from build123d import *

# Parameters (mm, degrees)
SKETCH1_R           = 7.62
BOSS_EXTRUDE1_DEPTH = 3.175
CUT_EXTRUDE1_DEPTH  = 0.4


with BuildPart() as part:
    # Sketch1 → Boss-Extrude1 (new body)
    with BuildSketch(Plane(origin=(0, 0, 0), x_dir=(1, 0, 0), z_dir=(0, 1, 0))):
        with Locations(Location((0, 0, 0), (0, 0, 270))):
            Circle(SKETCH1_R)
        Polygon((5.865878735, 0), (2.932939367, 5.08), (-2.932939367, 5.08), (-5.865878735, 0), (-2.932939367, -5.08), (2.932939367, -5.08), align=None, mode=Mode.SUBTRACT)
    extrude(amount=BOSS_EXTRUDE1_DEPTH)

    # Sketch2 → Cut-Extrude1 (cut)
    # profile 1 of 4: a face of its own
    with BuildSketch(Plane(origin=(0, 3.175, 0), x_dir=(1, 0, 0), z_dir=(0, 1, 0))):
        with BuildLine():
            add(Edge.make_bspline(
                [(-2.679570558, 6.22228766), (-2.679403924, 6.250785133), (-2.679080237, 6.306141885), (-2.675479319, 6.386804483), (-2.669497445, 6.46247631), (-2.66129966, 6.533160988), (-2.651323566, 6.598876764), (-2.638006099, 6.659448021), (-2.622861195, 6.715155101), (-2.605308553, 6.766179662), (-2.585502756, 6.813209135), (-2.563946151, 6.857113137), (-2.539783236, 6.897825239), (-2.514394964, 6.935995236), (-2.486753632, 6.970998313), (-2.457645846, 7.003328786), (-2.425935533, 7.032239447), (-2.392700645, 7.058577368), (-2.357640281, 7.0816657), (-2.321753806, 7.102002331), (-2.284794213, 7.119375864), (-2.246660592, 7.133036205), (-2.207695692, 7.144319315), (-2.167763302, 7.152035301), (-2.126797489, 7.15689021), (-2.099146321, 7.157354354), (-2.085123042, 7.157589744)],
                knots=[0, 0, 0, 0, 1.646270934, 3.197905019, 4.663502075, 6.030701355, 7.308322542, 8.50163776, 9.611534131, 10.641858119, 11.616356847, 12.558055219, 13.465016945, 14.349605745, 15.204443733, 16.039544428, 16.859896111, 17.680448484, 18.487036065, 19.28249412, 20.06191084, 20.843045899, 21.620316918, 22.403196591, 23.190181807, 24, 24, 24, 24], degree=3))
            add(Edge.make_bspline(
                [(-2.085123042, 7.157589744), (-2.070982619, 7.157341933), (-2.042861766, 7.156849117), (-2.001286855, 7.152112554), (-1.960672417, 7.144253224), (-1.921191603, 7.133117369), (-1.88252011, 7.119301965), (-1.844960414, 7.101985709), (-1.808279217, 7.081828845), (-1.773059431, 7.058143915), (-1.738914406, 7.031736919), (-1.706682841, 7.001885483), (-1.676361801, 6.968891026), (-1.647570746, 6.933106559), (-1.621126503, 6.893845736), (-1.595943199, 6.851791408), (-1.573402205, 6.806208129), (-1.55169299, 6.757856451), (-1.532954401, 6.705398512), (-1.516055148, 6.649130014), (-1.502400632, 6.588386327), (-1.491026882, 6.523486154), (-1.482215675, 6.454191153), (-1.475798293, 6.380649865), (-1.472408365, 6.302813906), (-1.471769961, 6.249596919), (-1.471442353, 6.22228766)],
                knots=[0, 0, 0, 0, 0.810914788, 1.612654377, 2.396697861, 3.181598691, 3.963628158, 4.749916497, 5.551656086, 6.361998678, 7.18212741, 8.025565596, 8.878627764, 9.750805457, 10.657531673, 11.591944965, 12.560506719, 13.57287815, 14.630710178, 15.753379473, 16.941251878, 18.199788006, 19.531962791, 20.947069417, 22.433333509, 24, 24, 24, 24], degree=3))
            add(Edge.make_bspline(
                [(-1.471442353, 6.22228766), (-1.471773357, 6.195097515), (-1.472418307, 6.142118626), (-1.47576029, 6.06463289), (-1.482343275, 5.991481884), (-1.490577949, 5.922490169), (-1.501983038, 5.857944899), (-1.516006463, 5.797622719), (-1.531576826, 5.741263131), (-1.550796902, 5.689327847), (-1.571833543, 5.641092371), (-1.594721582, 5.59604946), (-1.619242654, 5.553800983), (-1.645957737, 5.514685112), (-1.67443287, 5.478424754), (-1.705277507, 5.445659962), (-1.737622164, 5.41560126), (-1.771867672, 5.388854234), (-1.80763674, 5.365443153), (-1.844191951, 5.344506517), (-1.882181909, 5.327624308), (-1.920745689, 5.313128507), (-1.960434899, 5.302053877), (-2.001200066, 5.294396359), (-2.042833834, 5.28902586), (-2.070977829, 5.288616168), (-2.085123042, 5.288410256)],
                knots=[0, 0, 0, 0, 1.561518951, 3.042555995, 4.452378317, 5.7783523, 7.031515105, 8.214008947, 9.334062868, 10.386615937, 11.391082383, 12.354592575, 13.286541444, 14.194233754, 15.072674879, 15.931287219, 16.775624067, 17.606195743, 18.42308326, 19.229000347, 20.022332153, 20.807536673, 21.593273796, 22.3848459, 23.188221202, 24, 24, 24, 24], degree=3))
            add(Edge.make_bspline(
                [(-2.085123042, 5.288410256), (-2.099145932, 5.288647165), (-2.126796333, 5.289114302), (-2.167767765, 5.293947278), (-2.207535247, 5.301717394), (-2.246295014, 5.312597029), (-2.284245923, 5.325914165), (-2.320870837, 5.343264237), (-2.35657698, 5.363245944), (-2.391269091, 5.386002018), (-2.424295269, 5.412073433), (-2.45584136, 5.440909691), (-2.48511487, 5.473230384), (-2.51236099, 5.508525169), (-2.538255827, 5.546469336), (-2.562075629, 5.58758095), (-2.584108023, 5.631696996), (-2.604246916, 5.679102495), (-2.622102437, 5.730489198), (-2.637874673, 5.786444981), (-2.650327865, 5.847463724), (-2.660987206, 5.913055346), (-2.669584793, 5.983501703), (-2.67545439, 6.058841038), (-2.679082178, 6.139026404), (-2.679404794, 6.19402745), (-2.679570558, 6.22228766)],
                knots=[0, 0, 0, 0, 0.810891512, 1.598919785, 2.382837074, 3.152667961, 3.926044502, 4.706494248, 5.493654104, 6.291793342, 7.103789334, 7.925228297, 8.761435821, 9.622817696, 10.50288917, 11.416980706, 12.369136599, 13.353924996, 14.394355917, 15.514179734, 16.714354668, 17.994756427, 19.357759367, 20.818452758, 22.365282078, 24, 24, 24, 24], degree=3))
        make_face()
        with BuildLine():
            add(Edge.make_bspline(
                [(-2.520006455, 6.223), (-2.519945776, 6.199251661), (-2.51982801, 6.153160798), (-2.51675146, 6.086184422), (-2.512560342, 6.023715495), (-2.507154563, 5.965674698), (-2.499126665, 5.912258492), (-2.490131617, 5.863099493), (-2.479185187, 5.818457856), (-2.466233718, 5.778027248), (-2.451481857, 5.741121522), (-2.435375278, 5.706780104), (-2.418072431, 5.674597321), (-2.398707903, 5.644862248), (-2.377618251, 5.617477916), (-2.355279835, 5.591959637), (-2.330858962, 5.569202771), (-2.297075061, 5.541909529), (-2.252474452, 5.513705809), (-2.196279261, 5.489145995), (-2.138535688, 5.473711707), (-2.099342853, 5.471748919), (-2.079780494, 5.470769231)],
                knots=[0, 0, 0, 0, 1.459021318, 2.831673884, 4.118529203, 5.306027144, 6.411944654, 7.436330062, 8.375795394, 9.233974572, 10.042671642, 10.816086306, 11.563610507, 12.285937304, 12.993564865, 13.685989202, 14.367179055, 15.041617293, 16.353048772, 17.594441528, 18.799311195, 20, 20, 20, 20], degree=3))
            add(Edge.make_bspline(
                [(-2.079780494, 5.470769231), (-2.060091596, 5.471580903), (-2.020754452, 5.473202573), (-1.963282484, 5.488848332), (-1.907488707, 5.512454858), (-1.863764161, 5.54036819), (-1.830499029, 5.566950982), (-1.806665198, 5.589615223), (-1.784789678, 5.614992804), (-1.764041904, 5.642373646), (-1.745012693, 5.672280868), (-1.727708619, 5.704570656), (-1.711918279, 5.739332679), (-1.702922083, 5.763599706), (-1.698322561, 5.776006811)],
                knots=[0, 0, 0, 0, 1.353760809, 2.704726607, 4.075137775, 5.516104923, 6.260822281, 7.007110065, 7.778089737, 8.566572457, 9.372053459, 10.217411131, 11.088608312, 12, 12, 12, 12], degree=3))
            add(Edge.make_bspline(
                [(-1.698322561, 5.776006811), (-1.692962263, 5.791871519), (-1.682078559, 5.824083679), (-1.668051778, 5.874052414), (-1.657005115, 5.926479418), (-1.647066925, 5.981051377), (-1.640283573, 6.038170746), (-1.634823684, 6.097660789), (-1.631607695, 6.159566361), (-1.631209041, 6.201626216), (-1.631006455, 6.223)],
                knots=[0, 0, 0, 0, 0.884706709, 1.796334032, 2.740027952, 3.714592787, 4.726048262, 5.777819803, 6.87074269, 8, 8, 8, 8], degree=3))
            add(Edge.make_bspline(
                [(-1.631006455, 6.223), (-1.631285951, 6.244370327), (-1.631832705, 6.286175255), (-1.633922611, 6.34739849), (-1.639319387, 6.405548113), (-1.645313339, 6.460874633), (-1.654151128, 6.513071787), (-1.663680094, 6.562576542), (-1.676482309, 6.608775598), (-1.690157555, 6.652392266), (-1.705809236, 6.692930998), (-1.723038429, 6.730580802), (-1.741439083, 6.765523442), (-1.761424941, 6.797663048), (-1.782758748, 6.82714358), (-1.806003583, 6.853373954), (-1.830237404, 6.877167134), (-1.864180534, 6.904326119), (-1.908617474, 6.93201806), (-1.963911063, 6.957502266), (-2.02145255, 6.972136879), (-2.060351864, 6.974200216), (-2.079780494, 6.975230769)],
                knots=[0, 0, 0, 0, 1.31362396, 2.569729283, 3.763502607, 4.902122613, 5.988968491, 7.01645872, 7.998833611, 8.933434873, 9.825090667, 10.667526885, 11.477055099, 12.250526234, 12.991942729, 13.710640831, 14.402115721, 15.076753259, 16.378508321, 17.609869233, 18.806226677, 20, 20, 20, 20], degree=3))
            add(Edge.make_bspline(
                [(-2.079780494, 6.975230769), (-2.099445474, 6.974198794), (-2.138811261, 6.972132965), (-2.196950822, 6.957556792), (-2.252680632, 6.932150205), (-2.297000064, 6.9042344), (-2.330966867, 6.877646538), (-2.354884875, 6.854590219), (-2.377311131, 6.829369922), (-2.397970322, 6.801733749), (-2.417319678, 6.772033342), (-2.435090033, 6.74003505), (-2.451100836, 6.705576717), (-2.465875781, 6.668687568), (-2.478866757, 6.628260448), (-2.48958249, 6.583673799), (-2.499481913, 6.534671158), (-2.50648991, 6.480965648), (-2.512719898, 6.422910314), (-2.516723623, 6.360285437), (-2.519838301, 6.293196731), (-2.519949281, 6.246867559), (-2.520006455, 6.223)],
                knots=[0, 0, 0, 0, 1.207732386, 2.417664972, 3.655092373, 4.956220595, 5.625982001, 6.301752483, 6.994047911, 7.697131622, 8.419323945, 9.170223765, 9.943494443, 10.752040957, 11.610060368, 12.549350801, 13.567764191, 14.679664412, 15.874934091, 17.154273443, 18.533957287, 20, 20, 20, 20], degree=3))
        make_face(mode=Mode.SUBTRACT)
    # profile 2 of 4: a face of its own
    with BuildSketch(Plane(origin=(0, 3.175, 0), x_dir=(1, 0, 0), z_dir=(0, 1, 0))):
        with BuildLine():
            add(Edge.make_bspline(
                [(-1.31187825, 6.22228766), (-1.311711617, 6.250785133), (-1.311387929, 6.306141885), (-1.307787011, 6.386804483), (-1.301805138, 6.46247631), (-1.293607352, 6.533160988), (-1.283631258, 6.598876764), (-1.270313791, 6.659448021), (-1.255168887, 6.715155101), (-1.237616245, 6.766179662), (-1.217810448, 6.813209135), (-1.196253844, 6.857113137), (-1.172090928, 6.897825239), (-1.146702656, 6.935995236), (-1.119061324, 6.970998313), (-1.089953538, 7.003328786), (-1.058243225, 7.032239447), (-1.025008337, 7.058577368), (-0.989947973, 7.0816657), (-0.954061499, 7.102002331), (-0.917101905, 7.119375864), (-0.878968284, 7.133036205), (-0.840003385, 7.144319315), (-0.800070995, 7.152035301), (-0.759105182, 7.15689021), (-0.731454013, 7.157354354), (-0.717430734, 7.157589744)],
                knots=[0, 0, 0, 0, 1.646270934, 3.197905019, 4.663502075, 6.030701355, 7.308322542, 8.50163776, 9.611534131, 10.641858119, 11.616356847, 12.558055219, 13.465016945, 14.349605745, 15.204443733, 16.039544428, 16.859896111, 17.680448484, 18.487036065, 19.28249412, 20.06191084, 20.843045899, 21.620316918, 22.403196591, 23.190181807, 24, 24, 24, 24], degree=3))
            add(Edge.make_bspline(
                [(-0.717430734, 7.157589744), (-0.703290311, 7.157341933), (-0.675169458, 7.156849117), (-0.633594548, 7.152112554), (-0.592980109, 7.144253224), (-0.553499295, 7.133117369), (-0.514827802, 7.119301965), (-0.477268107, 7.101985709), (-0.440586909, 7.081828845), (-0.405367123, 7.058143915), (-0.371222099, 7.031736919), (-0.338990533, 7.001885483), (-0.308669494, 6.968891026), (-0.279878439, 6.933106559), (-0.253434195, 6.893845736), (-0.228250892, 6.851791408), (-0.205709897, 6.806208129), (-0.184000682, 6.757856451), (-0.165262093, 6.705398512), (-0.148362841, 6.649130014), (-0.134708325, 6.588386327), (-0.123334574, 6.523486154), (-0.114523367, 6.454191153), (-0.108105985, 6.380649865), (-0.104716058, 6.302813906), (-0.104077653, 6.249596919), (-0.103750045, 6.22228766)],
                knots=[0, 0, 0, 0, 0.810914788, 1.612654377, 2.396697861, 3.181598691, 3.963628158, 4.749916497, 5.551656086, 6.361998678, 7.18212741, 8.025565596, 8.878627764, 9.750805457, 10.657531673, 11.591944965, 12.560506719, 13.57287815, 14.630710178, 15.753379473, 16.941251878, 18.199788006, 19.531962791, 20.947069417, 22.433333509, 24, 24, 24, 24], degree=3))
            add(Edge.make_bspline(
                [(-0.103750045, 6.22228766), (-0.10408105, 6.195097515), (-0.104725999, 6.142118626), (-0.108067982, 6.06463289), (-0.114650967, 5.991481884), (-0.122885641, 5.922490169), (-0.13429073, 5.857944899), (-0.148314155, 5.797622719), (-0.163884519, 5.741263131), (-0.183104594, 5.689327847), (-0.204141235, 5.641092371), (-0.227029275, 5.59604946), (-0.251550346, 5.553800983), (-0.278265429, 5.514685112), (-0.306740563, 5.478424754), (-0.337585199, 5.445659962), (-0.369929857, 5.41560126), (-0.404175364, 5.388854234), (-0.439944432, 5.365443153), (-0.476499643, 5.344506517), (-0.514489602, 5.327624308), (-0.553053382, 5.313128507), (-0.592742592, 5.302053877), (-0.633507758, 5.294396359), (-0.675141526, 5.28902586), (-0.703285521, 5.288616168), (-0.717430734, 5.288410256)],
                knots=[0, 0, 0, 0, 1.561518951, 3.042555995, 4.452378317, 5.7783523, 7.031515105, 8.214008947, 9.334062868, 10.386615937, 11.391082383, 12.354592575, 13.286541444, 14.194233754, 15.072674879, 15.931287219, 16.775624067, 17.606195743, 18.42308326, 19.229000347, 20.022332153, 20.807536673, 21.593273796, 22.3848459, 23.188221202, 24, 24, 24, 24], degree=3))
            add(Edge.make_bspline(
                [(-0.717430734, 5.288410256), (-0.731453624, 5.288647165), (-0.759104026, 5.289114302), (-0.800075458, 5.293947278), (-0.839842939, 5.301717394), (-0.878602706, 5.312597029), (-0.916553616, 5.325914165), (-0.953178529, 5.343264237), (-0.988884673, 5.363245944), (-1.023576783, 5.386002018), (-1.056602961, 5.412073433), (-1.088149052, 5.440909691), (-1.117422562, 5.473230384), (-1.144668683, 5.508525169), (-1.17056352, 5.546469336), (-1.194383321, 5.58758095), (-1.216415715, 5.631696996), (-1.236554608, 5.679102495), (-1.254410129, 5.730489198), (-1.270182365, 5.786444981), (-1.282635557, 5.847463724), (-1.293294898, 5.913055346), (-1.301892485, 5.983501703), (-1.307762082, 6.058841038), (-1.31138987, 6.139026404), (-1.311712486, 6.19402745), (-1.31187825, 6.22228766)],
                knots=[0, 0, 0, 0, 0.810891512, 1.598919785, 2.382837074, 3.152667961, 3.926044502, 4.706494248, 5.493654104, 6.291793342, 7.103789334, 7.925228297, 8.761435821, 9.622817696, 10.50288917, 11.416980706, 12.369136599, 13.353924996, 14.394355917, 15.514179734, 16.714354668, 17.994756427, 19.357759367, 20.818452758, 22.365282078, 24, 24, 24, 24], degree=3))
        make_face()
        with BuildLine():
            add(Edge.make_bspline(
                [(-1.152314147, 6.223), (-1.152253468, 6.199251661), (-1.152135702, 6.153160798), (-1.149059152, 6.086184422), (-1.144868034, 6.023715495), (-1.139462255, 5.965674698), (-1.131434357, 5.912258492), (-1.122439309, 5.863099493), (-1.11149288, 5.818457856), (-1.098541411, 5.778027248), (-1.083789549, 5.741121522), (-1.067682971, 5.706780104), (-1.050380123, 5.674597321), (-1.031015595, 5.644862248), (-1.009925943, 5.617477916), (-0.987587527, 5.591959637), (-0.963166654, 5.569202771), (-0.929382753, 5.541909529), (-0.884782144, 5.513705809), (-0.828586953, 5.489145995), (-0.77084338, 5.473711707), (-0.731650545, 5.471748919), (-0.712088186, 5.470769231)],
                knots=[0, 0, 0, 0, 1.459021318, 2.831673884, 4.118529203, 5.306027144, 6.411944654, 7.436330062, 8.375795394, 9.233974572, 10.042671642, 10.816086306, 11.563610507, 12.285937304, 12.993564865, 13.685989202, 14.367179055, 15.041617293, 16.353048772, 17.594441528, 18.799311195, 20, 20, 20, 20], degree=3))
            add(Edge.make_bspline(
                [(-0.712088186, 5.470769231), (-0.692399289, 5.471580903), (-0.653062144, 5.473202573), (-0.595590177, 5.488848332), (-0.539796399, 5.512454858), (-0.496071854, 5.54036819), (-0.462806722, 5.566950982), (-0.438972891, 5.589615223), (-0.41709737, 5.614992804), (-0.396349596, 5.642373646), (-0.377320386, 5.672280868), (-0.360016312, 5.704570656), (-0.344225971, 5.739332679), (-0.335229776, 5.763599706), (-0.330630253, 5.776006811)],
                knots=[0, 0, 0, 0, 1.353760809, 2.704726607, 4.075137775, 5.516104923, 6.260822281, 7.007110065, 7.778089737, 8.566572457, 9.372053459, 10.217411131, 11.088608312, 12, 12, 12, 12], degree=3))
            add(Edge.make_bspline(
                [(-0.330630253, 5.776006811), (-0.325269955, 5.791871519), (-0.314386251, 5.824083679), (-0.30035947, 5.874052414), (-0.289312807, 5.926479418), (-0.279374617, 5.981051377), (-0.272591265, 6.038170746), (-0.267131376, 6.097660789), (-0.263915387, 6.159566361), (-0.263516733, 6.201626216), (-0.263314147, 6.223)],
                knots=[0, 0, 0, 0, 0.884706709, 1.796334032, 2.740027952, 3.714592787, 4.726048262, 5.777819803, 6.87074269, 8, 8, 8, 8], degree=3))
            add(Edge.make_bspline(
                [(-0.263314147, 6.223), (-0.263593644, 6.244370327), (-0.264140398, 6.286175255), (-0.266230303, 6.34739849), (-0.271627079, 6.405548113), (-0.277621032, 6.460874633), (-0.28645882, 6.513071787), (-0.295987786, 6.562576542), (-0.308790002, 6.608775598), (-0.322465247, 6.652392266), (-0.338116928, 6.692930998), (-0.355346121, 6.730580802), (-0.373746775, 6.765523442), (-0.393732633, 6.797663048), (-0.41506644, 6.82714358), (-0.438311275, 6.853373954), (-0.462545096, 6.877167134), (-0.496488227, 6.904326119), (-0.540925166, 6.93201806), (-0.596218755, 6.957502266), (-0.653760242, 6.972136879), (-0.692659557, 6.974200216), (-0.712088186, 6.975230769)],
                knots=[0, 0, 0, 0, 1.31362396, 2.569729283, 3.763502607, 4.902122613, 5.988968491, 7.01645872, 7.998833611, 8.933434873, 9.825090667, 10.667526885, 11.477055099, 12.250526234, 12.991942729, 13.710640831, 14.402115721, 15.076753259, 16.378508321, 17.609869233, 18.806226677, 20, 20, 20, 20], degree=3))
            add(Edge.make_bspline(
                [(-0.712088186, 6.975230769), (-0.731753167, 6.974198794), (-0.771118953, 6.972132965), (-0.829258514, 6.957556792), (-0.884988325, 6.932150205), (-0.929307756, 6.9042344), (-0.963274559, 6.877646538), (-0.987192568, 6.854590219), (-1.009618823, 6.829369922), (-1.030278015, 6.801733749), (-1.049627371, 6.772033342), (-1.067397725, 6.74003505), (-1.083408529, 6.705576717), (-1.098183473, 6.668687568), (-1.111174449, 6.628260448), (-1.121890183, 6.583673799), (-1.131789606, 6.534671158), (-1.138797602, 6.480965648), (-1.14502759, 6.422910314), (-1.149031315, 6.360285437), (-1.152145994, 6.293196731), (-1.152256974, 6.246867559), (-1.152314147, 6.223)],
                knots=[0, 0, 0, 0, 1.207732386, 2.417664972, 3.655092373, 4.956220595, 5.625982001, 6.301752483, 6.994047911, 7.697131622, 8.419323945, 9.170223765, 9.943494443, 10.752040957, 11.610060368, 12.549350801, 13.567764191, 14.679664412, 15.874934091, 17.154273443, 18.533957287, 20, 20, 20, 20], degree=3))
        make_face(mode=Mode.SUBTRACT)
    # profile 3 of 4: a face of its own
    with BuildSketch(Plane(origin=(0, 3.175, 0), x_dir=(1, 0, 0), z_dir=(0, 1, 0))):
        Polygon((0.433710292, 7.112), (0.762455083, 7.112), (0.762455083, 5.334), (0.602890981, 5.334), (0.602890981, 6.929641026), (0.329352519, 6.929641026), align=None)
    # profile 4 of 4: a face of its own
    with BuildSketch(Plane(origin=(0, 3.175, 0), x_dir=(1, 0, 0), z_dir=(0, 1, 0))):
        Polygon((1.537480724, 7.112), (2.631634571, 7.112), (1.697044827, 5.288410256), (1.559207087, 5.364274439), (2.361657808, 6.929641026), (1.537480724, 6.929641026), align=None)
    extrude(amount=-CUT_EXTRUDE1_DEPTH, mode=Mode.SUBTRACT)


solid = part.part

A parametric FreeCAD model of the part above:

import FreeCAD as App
import Part
import Sketcher

V = App.Vector
Q = App.Units.Quantity

doc = App.newDocument("Part")
params = doc.addObject("Spreadsheet::Sheet", "Params")
for row, (alias, value) in enumerate([
    ("sketch1_diameter", "0.6 in"),
    ("pad1_length", "0.125 in"),
    ("sketch2_height", "0.07 in"),
    ("pocket1_length", "0.4 mm"),
], start=1):
    params.set(f"A{row}", alias)
    params.set(f"B{row}", "=" + value)
    params.setAlias(f"B{row}", alias)

body = doc.addObject("PartDesign::Body", "Body")

# Sketch on XZ plane
sketch1 = doc.addObject("Sketcher::SketchObject", "Sketch")
body.addObject(sketch1)
sketch1.AttachmentSupport = (doc.XZ_Plane, [""])
sketch1.MapMode = "FlatFace"
sketch1.addGeometry(Part.Circle(V(0, 0, 0), V(0, 0, 1), 8), False)
sketch1.addGeometry(Part.LineSegment(V(3, -5, 0), V(6, 0, 0)), False)
sketch1.addGeometry(Part.LineSegment(V(6, 0, 0), V(3, 5, 0)), False)
sketch1.addGeometry(Part.LineSegment(V(3, 5, 0), V(-3, 5, 0)), False)
sketch1.addGeometry(Part.LineSegment(V(-3, 5, 0), V(-6, 0, 0)), False)
sketch1.addGeometry(Part.LineSegment(V(-6, 0, 0), V(-3, -5, 0)), False)
sketch1.addGeometry(Part.LineSegment(V(-3, -5, 0), V(3, -5, 0)), False)
sketch1.addConstraint(Sketcher.Constraint("Coincident", 1, 2, 2, 1))
sketch1.addConstraint(Sketcher.Constraint("Coincident", 2, 2, 3, 1))
sketch1.addConstraint(Sketcher.Constraint("Coincident", 3, 2, 4, 1))
sketch1.addConstraint(Sketcher.Constraint("Coincident", 4, 2, 5, 1))
sketch1.addConstraint(Sketcher.Constraint("Coincident", 5, 2, 6, 1))
sketch1.addConstraint(Sketcher.Constraint("Coincident", 6, 2, 1, 1))
sketch1.addConstraint(Sketcher.Constraint("Horizontal", 3))
sketch1.addConstraint(Sketcher.Constraint("Horizontal", 6))
sketch1.addConstraint(Sketcher.Constraint("Coincident", 0, 3, -1, 1))
sketch1.addConstraint(Sketcher.Constraint("Symmetric", 1, 2, 4, 2, -1, 1))
sketch1.addConstraint(Sketcher.Constraint("Symmetric", 2, 2, 5, 2, -1, 1))
sketch1.addConstraint(Sketcher.Constraint("PointOnObject", 1, 2, -1))
sketch1.addConstraint(Sketcher.Constraint("Parallel", 1, 4))
sketch1.addConstraint(Sketcher.Constraint("Vertical", 3, 2, 5, 2))
sketch1.addConstraint(Sketcher.Constraint("Diameter", 0, Q("0.6 in")))
sketch1.addConstraint(Sketcher.Constraint("Angle", 1, Q("60 deg")))
sketch1.addConstraint(Sketcher.Constraint("DistanceY", -1, 1, 2, 2, Q("0.2 in")))
sketch1.addConstraint(Sketcher.Constraint("DistanceX", 3, 2, 3, 1, 5.865879))
sketch1.setExpression("Constraints[14]", "Params.sketch1_diameter")
pad1 = doc.addObject("PartDesign::Pad", "Pad")
body.addObject(pad1)
pad1.Profile = sketch1
pad1.setExpression("Length", "Params.pad1_length")
pad1.Reversed = True

# Sketch on XZ plane
sketch2 = doc.addObject("Sketcher::SketchObject", "Sketch001")
body.addObject(sketch2)
sketch2.AttachmentSupport = (doc.XZ_Plane, [""])
sketch2.MapMode = "FlatFace"
sketch2.AttachmentOffset = App.Placement(V(0, 0, -0.125 * 25.4), App.Rotation())
sketch2.addGeometry(Part.BSplineCurve([V(-2.679571, -6.222288, 0), V(-2.679404, -6.250785, 0), V(-2.67908, -6.306142, 0), V(-2.675479, -6.386804, 0), V(-2.669497, -6.462476, 0), V(-2.6613, -6.533161, 0), V(-2.651324, -6.598877, 0), V(-2.638006, -6.659448, 0), V(-2.622861, -6.715155, 0), V(-2.605309, -6.76618, 0), V(-2.585503, -6.813209, 0), V(-2.563946, -6.857113, 0), V(-2.539783, -6.897825, 0), V(-2.514395, -6.935995, 0), V(-2.486754, -6.970998, 0), V(-2.457646, -7.003329, 0), V(-2.425936, -7.032239, 0), V(-2.392701, -7.058577, 0), V(-2.35764, -7.081666, 0), V(-2.321754, -7.102002, 0), V(-2.284794, -7.119376, 0), V(-2.246661, -7.133036, 0), V(-2.207696, -7.144319, 0), V(-2.167763, -7.152035, 0), V(-2.126797, -7.15689, 0), V(-2.099146, -7.157354, 0), V(-2.085123, -7.15759, 0)], [4, 1, 1, 1, 1, 1, 1, 1, 1, 1, 1, 1, 1, 1, 1, 1, 1, 1, 1, 1, 1, 1, 1, 1, 4], [0, 1.646270934, 3.197905019, 4.663502075, 6.030701355, 7.308322542, 8.50163776, 9.611534131, 10.641858119, 11.616356847, 12.558055219, 13.465016945, 14.349605745, 15.204443733, 16.039544428, 16.859896111, 17.680448484, 18.487036065, 19.28249412, 20.06191084, 20.843045899, 21.620316918, 22.403196591, 23.190181807, 24], False, 3, [1, 1, 1, 1, 1, 1, 1, 1, 1, 1, 1, 1, 1, 1, 1, 1, 1, 1, 1, 1, 1, 1, 1, 1, 1, 1, 1], False), False)
sketch2.addGeometry(Part.BSplineCurve([V(-2.085123, -5.28841, 0), V(-2.099146, -5.288647, 0), V(-2.126796, -5.289114, 0), V(-2.167768, -5.293947, 0), V(-2.207535, -5.301717, 0), V(-2.246295, -5.312597, 0), V(-2.284246, -5.325914, 0), V(-2.320871, -5.343264, 0), V(-2.356577, -5.363246, 0), V(-2.391269, -5.386002, 0), V(-2.424295, -5.412073, 0), V(-2.455841, -5.44091, 0), V(-2.485115, -5.47323, 0), V(-2.512361, -5.508525, 0), V(-2.538256, -5.546469, 0), V(-2.562076, -5.587581, 0), V(-2.584108, -5.631697, 0), V(-2.604247, -5.679102, 0), V(-2.622102, -5.730489, 0), V(-2.637875, -5.786445, 0), V(-2.650328, -5.847464, 0), V(-2.660987, -5.913055, 0), V(-2.669585, -5.983502, 0), V(-2.675454, -6.058841, 0), V(-2.679082, -6.139026, 0), V(-2.679405, -6.194027, 0), V(-2.679571, -6.222288, 0)], [4, 1, 1, 1, 1, 1, 1, 1, 1, 1, 1, 1, 1, 1, 1, 1, 1, 1, 1, 1, 1, 1, 1, 1, 4], [0, 0.810891512, 1.598919785, 2.382837074, 3.152667961, 3.926044502, 4.706494248, 5.493654104, 6.291793342, 7.103789334, 7.925228297, 8.761435821, 9.622817696, 10.50288917, 11.416980706, 12.369136599, 13.353924996, 14.394355917, 15.514179734, 16.714354668, 17.994756427, 19.357759367, 20.818452758, 22.365282078, 24], False, 3, [1, 1, 1, 1, 1, 1, 1, 1, 1, 1, 1, 1, 1, 1, 1, 1, 1, 1, 1, 1, 1, 1, 1, 1, 1, 1, 1], False), False)
sketch2.addGeometry(Part.BSplineCurve([V(-1.471442, -6.222288, 0), V(-1.471773, -6.195098, 0), V(-1.472418, -6.142119, 0), V(-1.47576, -6.064633, 0), V(-1.482343, -5.991482, 0), V(-1.490578, -5.92249, 0), V(-1.501983, -5.857945, 0), V(-1.516006, -5.797623, 0), V(-1.531577, -5.741263, 0), V(-1.550797, -5.689328, 0), V(-1.571834, -5.641092, 0), V(-1.594722, -5.596049, 0), V(-1.619243, -5.553801, 0), V(-1.645958, -5.514685, 0), V(-1.674433, -5.478425, 0), V(-1.705278, -5.44566, 0), V(-1.737622, -5.415601, 0), V(-1.771868, -5.388854, 0), V(-1.807637, -5.365443, 0), V(-1.844192, -5.344507, 0), V(-1.882182, -5.327624, 0), V(-1.920746, -5.313129, 0), V(-1.960435, -5.302054, 0), V(-2.0012, -5.294396, 0), V(-2.042834, -5.289026, 0), V(-2.070978, -5.288616, 0), V(-2.085123, -5.28841, 0)], [4, 1, 1, 1, 1, 1, 1, 1, 1, 1, 1, 1, 1, 1, 1, 1, 1, 1, 1, 1, 1, 1, 1, 1, 4], [0, 1.561518951, 3.042555995, 4.452378317, 5.7783523, 7.031515105, 8.214008947, 9.334062868, 10.386615937, 11.391082383, 12.354592575, 13.286541444, 14.194233754, 15.072674879, 15.931287219, 16.775624067, 17.606195743, 18.42308326, 19.229000347, 20.022332153, 20.807536673, 21.593273796, 22.3848459, 23.188221202, 24], False, 3, [1, 1, 1, 1, 1, 1, 1, 1, 1, 1, 1, 1, 1, 1, 1, 1, 1, 1, 1, 1, 1, 1, 1, 1, 1, 1, 1], False), False)
sketch2.addGeometry(Part.BSplineCurve([V(-2.085123, -7.15759, 0), V(-2.070983, -7.157342, 0), V(-2.042862, -7.156849, 0), V(-2.001287, -7.152113, 0), V(-1.960672, -7.144253, 0), V(-1.921192, -7.133117, 0), V(-1.88252, -7.119302, 0), V(-1.84496, -7.101986, 0), V(-1.808279, -7.081829, 0), V(-1.773059, -7.058144, 0), V(-1.738914, -7.031737, 0), V(-1.706683, -7.001885, 0), V(-1.676362, -6.968891, 0), V(-1.647571, -6.933107, 0), V(-1.621127, -6.893846, 0), V(-1.595943, -6.851791, 0), V(-1.573402, -6.806208, 0), V(-1.551693, -6.757856, 0), V(-1.532954, -6.705399, 0), V(-1.516055, -6.64913, 0), V(-1.502401, -6.588386, 0), V(-1.491027, -6.523486, 0), V(-1.482216, -6.454191, 0), V(-1.475798, -6.38065, 0), V(-1.472408, -6.302814, 0), V(-1.47177, -6.249597, 0), V(-1.471442, -6.222288, 0)], [4, 1, 1, 1, 1, 1, 1, 1, 1, 1, 1, 1, 1, 1, 1, 1, 1, 1, 1, 1, 1, 1, 1, 1, 4], [0, 0.810914788, 1.612654377, 2.396697861, 3.181598691, 3.963628158, 4.749916497, 5.551656086, 6.361998678, 7.18212741, 8.025565596, 8.878627764, 9.750805457, 10.657531673, 11.591944965, 12.560506719, 13.57287815, 14.630710178, 15.753379473, 16.941251878, 18.199788006, 19.531962791, 20.947069417, 22.433333509, 24], False, 3, [1, 1, 1, 1, 1, 1, 1, 1, 1, 1, 1, 1, 1, 1, 1, 1, 1, 1, 1, 1, 1, 1, 1, 1, 1, 1, 1], False), False)
sketch2.addGeometry(Part.BSplineCurve([V(-2.07978, -6.975231, 0), V(-2.099445, -6.974199, 0), V(-2.138811, -6.972133, 0), V(-2.196951, -6.957557, 0), V(-2.252681, -6.93215, 0), V(-2.297, -6.904234, 0), V(-2.330967, -6.877647, 0), V(-2.354885, -6.85459, 0), V(-2.377311, -6.82937, 0), V(-2.39797, -6.801734, 0), V(-2.41732, -6.772033, 0), V(-2.43509, -6.740035, 0), V(-2.451101, -6.705577, 0), V(-2.465876, -6.668688, 0), V(-2.478867, -6.62826, 0), V(-2.489582, -6.583674, 0), V(-2.499482, -6.534671, 0), V(-2.50649, -6.480966, 0), V(-2.51272, -6.42291, 0), V(-2.516724, -6.360285, 0), V(-2.519838, -6.293197, 0), V(-2.519949, -6.246868, 0), V(-2.520006, -6.223, 0)], [4, 1, 1, 1, 1, 1, 1, 1, 1, 1, 1, 1, 1, 1, 1, 1, 1, 1, 1, 1, 4], [0, 1.207732386, 2.417664972, 3.655092373, 4.956220595, 5.625982001, 6.301752483, 6.994047911, 7.697131622, 8.419323945, 9.170223765, 9.943494443, 10.752040957, 11.610060368, 12.549350801, 13.567764191, 14.679664412, 15.874934091, 17.154273443, 18.533957287, 20], False, 3, [1, 1, 1, 1, 1, 1, 1, 1, 1, 1, 1, 1, 1, 1, 1, 1, 1, 1, 1, 1, 1, 1, 1], False), False)
sketch2.addGeometry(Part.BSplineCurve([V(-1.631006, -6.223, 0), V(-1.631286, -6.24437, 0), V(-1.631833, -6.286175, 0), V(-1.633923, -6.347398, 0), V(-1.639319, -6.405548, 0), V(-1.645313, -6.460875, 0), V(-1.654151, -6.513072, 0), V(-1.66368, -6.562577, 0), V(-1.676482, -6.608776, 0), V(-1.690158, -6.652392, 0), V(-1.705809, -6.692931, 0), V(-1.723038, -6.730581, 0), V(-1.741439, -6.765523, 0), V(-1.761425, -6.797663, 0), V(-1.782759, -6.827144, 0), V(-1.806004, -6.853374, 0), V(-1.830237, -6.877167, 0), V(-1.864181, -6.904326, 0), V(-1.908617, -6.932018, 0), V(-1.963911, -6.957502, 0), V(-2.021453, -6.972137, 0), V(-2.060352, -6.9742, 0), V(-2.07978, -6.975231, 0)], [4, 1, 1, 1, 1, 1, 1, 1, 1, 1, 1, 1, 1, 1, 1, 1, 1, 1, 1, 1, 4], [0, 1.31362396, 2.569729283, 3.763502607, 4.902122613, 5.988968491, 7.01645872, 7.998833611, 8.933434873, 9.825090667, 10.667526885, 11.477055099, 12.250526234, 12.991942729, 13.710640831, 14.402115721, 15.076753259, 16.378508321, 17.609869233, 18.806226677, 20], False, 3, [1, 1, 1, 1, 1, 1, 1, 1, 1, 1, 1, 1, 1, 1, 1, 1, 1, 1, 1, 1, 1, 1, 1], False), False)
sketch2.addGeometry(Part.BSplineCurve([V(-1.698323, -5.776007, 0), V(-1.692962, -5.791872, 0), V(-1.682079, -5.824084, 0), V(-1.668052, -5.874052, 0), V(-1.657005, -5.926479, 0), V(-1.647067, -5.981051, 0), V(-1.640284, -6.038171, 0), V(-1.634824, -6.097661, 0), V(-1.631608, -6.159566, 0), V(-1.631209, -6.201626, 0), V(-1.631006, -6.223, 0)], [4, 1, 1, 1, 1, 1, 1, 1, 4], [0, 0.884706709, 1.796334032, 2.740027952, 3.714592787, 4.726048262, 5.777819803, 6.87074269, 8], False, 3, [1, 1, 1, 1, 1, 1, 1, 1, 1, 1, 1], False), False)
sketch2.addGeometry(Part.BSplineCurve([V(-2.07978, -5.470769, 0), V(-2.060092, -5.471581, 0), V(-2.020754, -5.473203, 0), V(-1.963282, -5.488848, 0), V(-1.907489, -5.512455, 0), V(-1.863764, -5.540368, 0), V(-1.830499, -5.566951, 0), V(-1.806665, -5.589615, 0), V(-1.78479, -5.614993, 0), V(-1.764042, -5.642374, 0), V(-1.745013, -5.672281, 0), V(-1.727709, -5.704571, 0), V(-1.711918, -5.739333, 0), V(-1.702922, -5.7636, 0), V(-1.698323, -5.776007, 0)], [4, 1, 1, 1, 1, 1, 1, 1, 1, 1, 1, 1, 4], [0, 1.353760809, 2.704726607, 4.075137775, 5.516104923, 6.260822281, 7.007110065, 7.778089737, 8.566572457, 9.372053459, 10.217411131, 11.088608312, 12], False, 3, [1, 1, 1, 1, 1, 1, 1, 1, 1, 1, 1, 1, 1, 1, 1], False), False)
sketch2.addGeometry(Part.BSplineCurve([V(-2.520006, -6.223, 0), V(-2.519946, -6.199252, 0), V(-2.519828, -6.153161, 0), V(-2.516751, -6.086184, 0), V(-2.51256, -6.023715, 0), V(-2.507155, -5.965675, 0), V(-2.499127, -5.912258, 0), V(-2.490132, -5.863099, 0), V(-2.479185, -5.818458, 0), V(-2.466234, -5.778027, 0), V(-2.451482, -5.741122, 0), V(-2.435375, -5.70678, 0), V(-2.418072, -5.674597, 0), V(-2.398708, -5.644862, 0), V(-2.377618, -5.617478, 0), V(-2.35528, -5.59196, 0), V(-2.330859, -5.569203, 0), V(-2.297075, -5.54191, 0), V(-2.252474, -5.513706, 0), V(-2.196279, -5.489146, 0), V(-2.138536, -5.473712, 0), V(-2.099343, -5.471749, 0), V(-2.07978, -5.470769, 0)], [4, 1, 1, 1, 1, 1, 1, 1, 1, 1, 1, 1, 1, 1, 1, 1, 1, 1, 1, 1, 4], [0, 1.459021318, 2.831673884, 4.118529203, 5.306027144, 6.411944654, 7.436330062, 8.375795394, 9.233974572, 10.042671642, 10.816086306, 11.563610507, 12.285937304, 12.993564865, 13.685989202, 14.367179055, 15.041617293, 16.353048772, 17.594441528, 18.799311195, 20], False, 3, [1, 1, 1, 1, 1, 1, 1, 1, 1, 1, 1, 1, 1, 1, 1, 1, 1, 1, 1, 1, 1, 1, 1], False), False)
sketch2.addGeometry(Part.BSplineCurve([V(-1.311878, -6.222288, 0), V(-1.311712, -6.250785, 0), V(-1.311388, -6.306142, 0), V(-1.307787, -6.386804, 0), V(-1.301805, -6.462476, 0), V(-1.293607, -6.533161, 0), V(-1.283631, -6.598877, 0), V(-1.270314, -6.659448, 0), V(-1.255169, -6.715155, 0), V(-1.237616, -6.76618, 0), V(-1.21781, -6.813209, 0), V(-1.196254, -6.857113, 0), V(-1.172091, -6.897825, 0), V(-1.146703, -6.935995, 0), V(-1.119061, -6.970998, 0), V(-1.089954, -7.003329, 0), V(-1.058243, -7.032239, 0), V(-1.025008, -7.058577, 0), V(-0.989948, -7.081666, 0), V(-0.954061, -7.102002, 0), V(-0.917102, -7.119376, 0), V(-0.878968, -7.133036, 0), V(-0.840003, -7.144319, 0), V(-0.800071, -7.152035, 0), V(-0.759105, -7.15689, 0), V(-0.731454, -7.157354, 0), V(-0.717431, -7.15759, 0)], [4, 1, 1, 1, 1, 1, 1, 1, 1, 1, 1, 1, 1, 1, 1, 1, 1, 1, 1, 1, 1, 1, 1, 1, 4], [0, 1.646270934, 3.197905019, 4.663502075, 6.030701355, 7.308322542, 8.50163776, 9.611534131, 10.641858119, 11.616356847, 12.558055219, 13.465016945, 14.349605745, 15.204443733, 16.039544428, 16.859896111, 17.680448484, 18.487036065, 19.28249412, 20.06191084, 20.843045899, 21.620316918, 22.403196591, 23.190181807, 24], False, 3, [1, 1, 1, 1, 1, 1, 1, 1, 1, 1, 1, 1, 1, 1, 1, 1, 1, 1, 1, 1, 1, 1, 1, 1, 1, 1, 1], False), False)
sketch2.addGeometry(Part.BSplineCurve([V(-0.717431, -5.28841, 0), V(-0.731454, -5.288647, 0), V(-0.759104, -5.289114, 0), V(-0.800075, -5.293947, 0), V(-0.839843, -5.301717, 0), V(-0.878603, -5.312597, 0), V(-0.916554, -5.325914, 0), V(-0.953179, -5.343264, 0), V(-0.988885, -5.363246, 0), V(-1.023577, -5.386002, 0), V(-1.056603, -5.412073, 0), V(-1.088149, -5.44091, 0), V(-1.117423, -5.47323, 0), V(-1.144669, -5.508525, 0), V(-1.170564, -5.546469, 0), V(-1.194383, -5.587581, 0), V(-1.216416, -5.631697, 0), V(-1.236555, -5.679102, 0), V(-1.25441, -5.730489, 0), V(-1.270182, -5.786445, 0), V(-1.282636, -5.847464, 0), V(-1.293295, -5.913055, 0), V(-1.301892, -5.983502, 0), V(-1.307762, -6.058841, 0), V(-1.31139, -6.139026, 0), V(-1.311712, -6.194027, 0), V(-1.311878, -6.222288, 0)], [4, 1, 1, 1, 1, 1, 1, 1, 1, 1, 1, 1, 1, 1, 1, 1, 1, 1, 1, 1, 1, 1, 1, 1, 4], [0, 0.810891512, 1.598919785, 2.382837074, 3.152667961, 3.926044502, 4.706494248, 5.493654104, 6.291793342, 7.103789334, 7.925228297, 8.761435821, 9.622817696, 10.50288917, 11.416980706, 12.369136599, 13.353924996, 14.394355917, 15.514179734, 16.714354668, 17.994756427, 19.357759367, 20.818452758, 22.365282078, 24], False, 3, [1, 1, 1, 1, 1, 1, 1, 1, 1, 1, 1, 1, 1, 1, 1, 1, 1, 1, 1, 1, 1, 1, 1, 1, 1, 1, 1], False), False)
sketch2.addGeometry(Part.BSplineCurve([V(-0.10375, -6.222288, 0), V(-0.104081, -6.195098, 0), V(-0.104726, -6.142119, 0), V(-0.108068, -6.064633, 0), V(-0.114651, -5.991482, 0), V(-0.122886, -5.92249, 0), V(-0.134291, -5.857945, 0), V(-0.148314, -5.797623, 0), V(-0.163885, -5.741263, 0), V(-0.183105, -5.689328, 0), V(-0.204141, -5.641092, 0), V(-0.227029, -5.596049, 0), V(-0.25155, -5.553801, 0), V(-0.278265, -5.514685, 0), V(-0.306741, -5.478425, 0), V(-0.337585, -5.44566, 0), V(-0.36993, -5.415601, 0), V(-0.404175, -5.388854, 0), V(-0.439944, -5.365443, 0), V(-0.4765, -5.344507, 0), V(-0.51449, -5.327624, 0), V(-0.553053, -5.313129, 0), V(-0.592743, -5.302054, 0), V(-0.633508, -5.294396, 0), V(-0.675142, -5.289026, 0), V(-0.703286, -5.288616, 0), V(-0.717431, -5.28841, 0)], [4, 1, 1, 1, 1, 1, 1, 1, 1, 1, 1, 1, 1, 1, 1, 1, 1, 1, 1, 1, 1, 1, 1, 1, 4], [0, 1.561518951, 3.042555995, 4.452378317, 5.7783523, 7.031515105, 8.214008947, 9.334062868, 10.386615937, 11.391082383, 12.354592575, 13.286541444, 14.194233754, 15.072674879, 15.931287219, 16.775624067, 17.606195743, 18.42308326, 19.229000347, 20.022332153, 20.807536673, 21.593273796, 22.3848459, 23.188221202, 24], False, 3, [1, 1, 1, 1, 1, 1, 1, 1, 1, 1, 1, 1, 1, 1, 1, 1, 1, 1, 1, 1, 1, 1, 1, 1, 1, 1, 1], False), False)
sketch2.addGeometry(Part.BSplineCurve([V(-0.717431, -7.15759, 0), V(-0.70329, -7.157342, 0), V(-0.675169, -7.156849, 0), V(-0.633595, -7.152113, 0), V(-0.59298, -7.144253, 0), V(-0.553499, -7.133117, 0), V(-0.514828, -7.119302, 0), V(-0.477268, -7.101986, 0), V(-0.440587, -7.081829, 0), V(-0.405367, -7.058144, 0), V(-0.371222, -7.031737, 0), V(-0.338991, -7.001885, 0), V(-0.308669, -6.968891, 0), V(-0.279878, -6.933107, 0), V(-0.253434, -6.893846, 0), V(-0.228251, -6.851791, 0), V(-0.20571, -6.806208, 0), V(-0.184001, -6.757856, 0), V(-0.165262, -6.705399, 0), V(-0.148363, -6.64913, 0), V(-0.134708, -6.588386, 0), V(-0.123335, -6.523486, 0), V(-0.114523, -6.454191, 0), V(-0.108106, -6.38065, 0), V(-0.104716, -6.302814, 0), V(-0.104078, -6.249597, 0), V(-0.10375, -6.222288, 0)], [4, 1, 1, 1, 1, 1, 1, 1, 1, 1, 1, 1, 1, 1, 1, 1, 1, 1, 1, 1, 1, 1, 1, 1, 4], [0, 0.810914788, 1.612654377, 2.396697861, 3.181598691, 3.963628158, 4.749916497, 5.551656086, 6.361998678, 7.18212741, 8.025565596, 8.878627764, 9.750805457, 10.657531673, 11.591944965, 12.560506719, 13.57287815, 14.630710178, 15.753379473, 16.941251878, 18.199788006, 19.531962791, 20.947069417, 22.433333509, 24], False, 3, [1, 1, 1, 1, 1, 1, 1, 1, 1, 1, 1, 1, 1, 1, 1, 1, 1, 1, 1, 1, 1, 1, 1, 1, 1, 1, 1], False), False)
sketch2.addGeometry(Part.BSplineCurve([V(-0.712088, -6.975231, 0), V(-0.731753, -6.974199, 0), V(-0.771119, -6.972133, 0), V(-0.829259, -6.957557, 0), V(-0.884988, -6.93215, 0), V(-0.929308, -6.904234, 0), V(-0.963275, -6.877647, 0), V(-0.987193, -6.85459, 0), V(-1.009619, -6.82937, 0), V(-1.030278, -6.801734, 0), V(-1.049627, -6.772033, 0), V(-1.067398, -6.740035, 0), V(-1.083409, -6.705577, 0), V(-1.098183, -6.668688, 0), V(-1.111174, -6.62826, 0), V(-1.12189, -6.583674, 0), V(-1.13179, -6.534671, 0), V(-1.138798, -6.480966, 0), V(-1.145028, -6.42291, 0), V(-1.149031, -6.360285, 0), V(-1.152146, -6.293197, 0), V(-1.152257, -6.246868, 0), V(-1.152314, -6.223, 0)], [4, 1, 1, 1, 1, 1, 1, 1, 1, 1, 1, 1, 1, 1, 1, 1, 1, 1, 1, 1, 4], [0, 1.207732386, 2.417664972, 3.655092373, 4.956220595, 5.625982001, 6.301752483, 6.994047911, 7.697131622, 8.419323945, 9.170223765, 9.943494443, 10.752040957, 11.610060368, 12.549350801, 13.567764191, 14.679664412, 15.874934091, 17.154273443, 18.533957287, 20], False, 3, [1, 1, 1, 1, 1, 1, 1, 1, 1, 1, 1, 1, 1, 1, 1, 1, 1, 1, 1, 1, 1, 1, 1], False), False)
sketch2.addGeometry(Part.BSplineCurve([V(-0.263314, -6.223, 0), V(-0.263594, -6.24437, 0), V(-0.26414, -6.286175, 0), V(-0.26623, -6.347398, 0), V(-0.271627, -6.405548, 0), V(-0.277621, -6.460875, 0), V(-0.286459, -6.513072, 0), V(-0.295988, -6.562577, 0), V(-0.30879, -6.608776, 0), V(-0.322465, -6.652392, 0), V(-0.338117, -6.692931, 0), V(-0.355346, -6.730581, 0), V(-0.373747, -6.765523, 0), V(-0.393733, -6.797663, 0), V(-0.415066, -6.827144, 0), V(-0.438311, -6.853374, 0), V(-0.462545, -6.877167, 0), V(-0.496488, -6.904326, 0), V(-0.540925, -6.932018, 0), V(-0.596219, -6.957502, 0), V(-0.65376, -6.972137, 0), V(-0.69266, -6.9742, 0), V(-0.712088, -6.975231, 0)], [4, 1, 1, 1, 1, 1, 1, 1, 1, 1, 1, 1, 1, 1, 1, 1, 1, 1, 1, 1, 4], [0, 1.31362396, 2.569729283, 3.763502607, 4.902122613, 5.988968491, 7.01645872, 7.998833611, 8.933434873, 9.825090667, 10.667526885, 11.477055099, 12.250526234, 12.991942729, 13.710640831, 14.402115721, 15.076753259, 16.378508321, 17.609869233, 18.806226677, 20], False, 3, [1, 1, 1, 1, 1, 1, 1, 1, 1, 1, 1, 1, 1, 1, 1, 1, 1, 1, 1, 1, 1, 1, 1], False), False)
sketch2.addGeometry(Part.BSplineCurve([V(-0.33063, -5.776007, 0), V(-0.32527, -5.791872, 0), V(-0.314386, -5.824084, 0), V(-0.300359, -5.874052, 0), V(-0.289313, -5.926479, 0), V(-0.279375, -5.981051, 0), V(-0.272591, -6.038171, 0), V(-0.267131, -6.097661, 0), V(-0.263915, -6.159566, 0), V(-0.263517, -6.201626, 0), V(-0.263314, -6.223, 0)], [4, 1, 1, 1, 1, 1, 1, 1, 4], [0, 0.884706709, 1.796334032, 2.740027952, 3.714592787, 4.726048262, 5.777819803, 6.87074269, 8], False, 3, [1, 1, 1, 1, 1, 1, 1, 1, 1, 1, 1], False), False)
sketch2.addGeometry(Part.BSplineCurve([V(-0.712088, -5.470769, 0), V(-0.692399, -5.471581, 0), V(-0.653062, -5.473203, 0), V(-0.59559, -5.488848, 0), V(-0.539796, -5.512455, 0), V(-0.496072, -5.540368, 0), V(-0.462807, -5.566951, 0), V(-0.438973, -5.589615, 0), V(-0.417097, -5.614993, 0), V(-0.39635, -5.642374, 0), V(-0.37732, -5.672281, 0), V(-0.360016, -5.704571, 0), V(-0.344226, -5.739333, 0), V(-0.33523, -5.7636, 0), V(-0.33063, -5.776007, 0)], [4, 1, 1, 1, 1, 1, 1, 1, 1, 1, 1, 1, 4], [0, 1.353760809, 2.704726607, 4.075137775, 5.516104923, 6.260822281, 7.007110065, 7.778089737, 8.566572457, 9.372053459, 10.217411131, 11.088608312, 12], False, 3, [1, 1, 1, 1, 1, 1, 1, 1, 1, 1, 1, 1, 1, 1, 1], False), False)
sketch2.addGeometry(Part.BSplineCurve([V(-1.152314, -6.223, 0), V(-1.152253, -6.199252, 0), V(-1.152136, -6.153161, 0), V(-1.149059, -6.086184, 0), V(-1.144868, -6.023715, 0), V(-1.139462, -5.965675, 0), V(-1.131434, -5.912258, 0), V(-1.122439, -5.863099, 0), V(-1.111493, -5.818458, 0), V(-1.098541, -5.778027, 0), V(-1.08379, -5.741122, 0), V(-1.067683, -5.70678, 0), V(-1.05038, -5.674597, 0), V(-1.031016, -5.644862, 0), V(-1.009926, -5.617478, 0), V(-0.987588, -5.59196, 0), V(-0.963167, -5.569203, 0), V(-0.929383, -5.54191, 0), V(-0.884782, -5.513706, 0), V(-0.828587, -5.489146, 0), V(-0.770843, -5.473712, 0), V(-0.731651, -5.471749, 0), V(-0.712088, -5.470769, 0)], [4, 1, 1, 1, 1, 1, 1, 1, 1, 1, 1, 1, 1, 1, 1, 1, 1, 1, 1, 1, 4], [0, 1.459021318, 2.831673884, 4.118529203, 5.306027144, 6.411944654, 7.436330062, 8.375795394, 9.233974572, 10.042671642, 10.816086306, 11.563610507, 12.285937304, 12.993564865, 13.685989202, 14.367179055, 15.041617293, 16.353048772, 17.594441528, 18.799311195, 20], False, 3, [1, 1, 1, 1, 1, 1, 1, 1, 1, 1, 1, 1, 1, 1, 1, 1, 1, 1, 1, 1, 1, 1, 1], False), False)
sketch2.addGeometry(Part.LineSegment(V(0.762455, -7.112, 0), V(0.43371, -7.112, 0)), False)
sketch2.addGeometry(Part.LineSegment(V(0.43371, -7.112, 0), V(0.329353, -6.929641, 0)), False)
sketch2.addGeometry(Part.LineSegment(V(0.329353, -6.929641, 0), V(0.602891, -6.929641, 0)), False)
sketch2.addGeometry(Part.LineSegment(V(0.602891, -6.929641, 0), V(0.602891, -5.334, 0)), False)
sketch2.addGeometry(Part.LineSegment(V(0.602891, -5.334, 0), V(0.762455, -5.334, 0)), False)
sketch2.addGeometry(Part.LineSegment(V(0.762455, -5.334, 0), V(0.762455, -7.112, 0)), False)
sketch2.addGeometry(Part.LineSegment(V(2.631635, -7.112, 0), V(1.537481, -7.112, 0)), False)
sketch2.addGeometry(Part.LineSegment(V(1.537481, -7.112, 0), V(1.537481, -6.929641, 0)), False)
sketch2.addGeometry(Part.LineSegment(V(1.537481, -6.929641, 0), V(2.361658, -6.929641, 0)), False)
sketch2.addGeometry(Part.LineSegment(V(2.361658, -6.929641, 0), V(1.559207, -5.364274, 0)), False)
sketch2.addGeometry(Part.LineSegment(V(1.559207, -5.364274, 0), V(1.697045, -5.28841, 0)), False)
sketch2.addGeometry(Part.LineSegment(V(1.697045, -5.28841, 0), V(2.631635, -7.112, 0)), False)
sketch2.addConstraint(Sketcher.Constraint("Block", 0))
sketch2.addConstraint(Sketcher.Constraint("Block", 1))
sketch2.addConstraint(Sketcher.Constraint("Block", 2))
sketch2.addConstraint(Sketcher.Constraint("Block", 3))
sketch2.addConstraint(Sketcher.Constraint("Block", 4))
sketch2.addConstraint(Sketcher.Constraint("Block", 5))
sketch2.addConstraint(Sketcher.Constraint("Block", 6))
sketch2.addConstraint(Sketcher.Constraint("Block", 7))
sketch2.addConstraint(Sketcher.Constraint("Block", 8))
sketch2.addConstraint(Sketcher.Constraint("Block", 9))
sketch2.addConstraint(Sketcher.Constraint("Block", 10))
sketch2.addConstraint(Sketcher.Constraint("Block", 11))
sketch2.addConstraint(Sketcher.Constraint("Block", 12))
sketch2.addConstraint(Sketcher.Constraint("Block", 13))
sketch2.addConstraint(Sketcher.Constraint("Block", 14))
sketch2.addConstraint(Sketcher.Constraint("Block", 15))
sketch2.addConstraint(Sketcher.Constraint("Block", 16))
sketch2.addConstraint(Sketcher.Constraint("Block", 17))
sketch2.addConstraint(Sketcher.Constraint("Coincident", 18, 2, 19, 1))
sketch2.addConstraint(Sketcher.Constraint("Coincident", 19, 2, 20, 1))
sketch2.addConstraint(Sketcher.Constraint("Coincident", 20, 2, 21, 1))
sketch2.addConstraint(Sketcher.Constraint("Coincident", 21, 2, 22, 1))
sketch2.addConstraint(Sketcher.Constraint("Coincident", 22, 2, 23, 1))
sketch2.addConstraint(Sketcher.Constraint("Coincident", 23, 2, 18, 1))
sketch2.addConstraint(Sketcher.Constraint("Coincident", 24, 2, 25, 1))
sketch2.addConstraint(Sketcher.Constraint("Coincident", 25, 2, 26, 1))
sketch2.addConstraint(Sketcher.Constraint("Coincident", 26, 2, 27, 1))
sketch2.addConstraint(Sketcher.Constraint("Coincident", 27, 2, 28, 1))
sketch2.addConstraint(Sketcher.Constraint("Coincident", 28, 2, 29, 1))
sketch2.addConstraint(Sketcher.Constraint("Coincident", 29, 2, 24, 1))
sketch2.addConstraint(Sketcher.Constraint("Horizontal", 18))
sketch2.addConstraint(Sketcher.Constraint("Horizontal", 20))
sketch2.addConstraint(Sketcher.Constraint("Vertical", 21))
sketch2.addConstraint(Sketcher.Constraint("Horizontal", 22))
sketch2.addConstraint(Sketcher.Constraint("Vertical", 23))
sketch2.addConstraint(Sketcher.Constraint("Horizontal", 24))
sketch2.addConstraint(Sketcher.Constraint("Vertical", 25))
sketch2.addConstraint(Sketcher.Constraint("Horizontal", 26))
sketch2.addConstraint(Sketcher.Constraint("Horizontal", 23, 2, 24, 2))
sketch2.addConstraint(Sketcher.Constraint("Horizontal", 20, 2, 25, 2))
sketch2.addConstraint(Sketcher.Constraint("DistanceY", 23, 2, 23, 1, Q("0.07 in")))
sketch2.addConstraint(Sketcher.Constraint("DistanceY", 18, 2, -1, 1, Q("0.28 in")))
sketch2.addConstraint(Sketcher.Constraint("DistanceX", 20, 1, 20, 2, 0.273538))
sketch2.addConstraint(Sketcher.Constraint("DistanceY", 21, 1, 21, 2, 1.595641))
sketch2.addConstraint(Sketcher.Constraint("Distance", 29, 2.049131))
sketch2.addConstraint(Sketcher.Constraint("DistanceX", 18, 2, 18, 1, 0.328745))
sketch2.addConstraint(Sketcher.Constraint("DistanceX", 22, 1, 22, 2, 0.159564))
sketch2.addConstraint(Sketcher.Constraint("DistanceX", 24, 2, 24, 1, 1.094154))
sketch2.addConstraint(Sketcher.Constraint("DistanceX", 26, 1, 26, 2, 0.824177))
sketch2.addConstraint(Sketcher.Constraint("DistanceX", -1, 1, 18, 2, 0.43371))
sketch2.addConstraint(Sketcher.Constraint("DistanceX", -1, 1, 24, 2, 1.537481))
sketch2.addConstraint(Sketcher.Constraint("DistanceY", 28, 2, -1, 1, 5.28841))
sketch2.addConstraint(Sketcher.Constraint("DistanceX", 27, 2, 26, 2, 0.802451))
sketch2.addConstraint(Sketcher.Constraint("Distance", 27, 1.759062))
sketch2.setExpression("Constraints[40]", "Params.sketch2_height")
pocket1 = doc.addObject("PartDesign::Pocket", "Pocket")
body.addObject(pocket1)
pocket1.Profile = sketch2
pocket1.setExpression("Length", "Params.pocket1_length")
pocket1.Reversed = True

doc.recompute()
